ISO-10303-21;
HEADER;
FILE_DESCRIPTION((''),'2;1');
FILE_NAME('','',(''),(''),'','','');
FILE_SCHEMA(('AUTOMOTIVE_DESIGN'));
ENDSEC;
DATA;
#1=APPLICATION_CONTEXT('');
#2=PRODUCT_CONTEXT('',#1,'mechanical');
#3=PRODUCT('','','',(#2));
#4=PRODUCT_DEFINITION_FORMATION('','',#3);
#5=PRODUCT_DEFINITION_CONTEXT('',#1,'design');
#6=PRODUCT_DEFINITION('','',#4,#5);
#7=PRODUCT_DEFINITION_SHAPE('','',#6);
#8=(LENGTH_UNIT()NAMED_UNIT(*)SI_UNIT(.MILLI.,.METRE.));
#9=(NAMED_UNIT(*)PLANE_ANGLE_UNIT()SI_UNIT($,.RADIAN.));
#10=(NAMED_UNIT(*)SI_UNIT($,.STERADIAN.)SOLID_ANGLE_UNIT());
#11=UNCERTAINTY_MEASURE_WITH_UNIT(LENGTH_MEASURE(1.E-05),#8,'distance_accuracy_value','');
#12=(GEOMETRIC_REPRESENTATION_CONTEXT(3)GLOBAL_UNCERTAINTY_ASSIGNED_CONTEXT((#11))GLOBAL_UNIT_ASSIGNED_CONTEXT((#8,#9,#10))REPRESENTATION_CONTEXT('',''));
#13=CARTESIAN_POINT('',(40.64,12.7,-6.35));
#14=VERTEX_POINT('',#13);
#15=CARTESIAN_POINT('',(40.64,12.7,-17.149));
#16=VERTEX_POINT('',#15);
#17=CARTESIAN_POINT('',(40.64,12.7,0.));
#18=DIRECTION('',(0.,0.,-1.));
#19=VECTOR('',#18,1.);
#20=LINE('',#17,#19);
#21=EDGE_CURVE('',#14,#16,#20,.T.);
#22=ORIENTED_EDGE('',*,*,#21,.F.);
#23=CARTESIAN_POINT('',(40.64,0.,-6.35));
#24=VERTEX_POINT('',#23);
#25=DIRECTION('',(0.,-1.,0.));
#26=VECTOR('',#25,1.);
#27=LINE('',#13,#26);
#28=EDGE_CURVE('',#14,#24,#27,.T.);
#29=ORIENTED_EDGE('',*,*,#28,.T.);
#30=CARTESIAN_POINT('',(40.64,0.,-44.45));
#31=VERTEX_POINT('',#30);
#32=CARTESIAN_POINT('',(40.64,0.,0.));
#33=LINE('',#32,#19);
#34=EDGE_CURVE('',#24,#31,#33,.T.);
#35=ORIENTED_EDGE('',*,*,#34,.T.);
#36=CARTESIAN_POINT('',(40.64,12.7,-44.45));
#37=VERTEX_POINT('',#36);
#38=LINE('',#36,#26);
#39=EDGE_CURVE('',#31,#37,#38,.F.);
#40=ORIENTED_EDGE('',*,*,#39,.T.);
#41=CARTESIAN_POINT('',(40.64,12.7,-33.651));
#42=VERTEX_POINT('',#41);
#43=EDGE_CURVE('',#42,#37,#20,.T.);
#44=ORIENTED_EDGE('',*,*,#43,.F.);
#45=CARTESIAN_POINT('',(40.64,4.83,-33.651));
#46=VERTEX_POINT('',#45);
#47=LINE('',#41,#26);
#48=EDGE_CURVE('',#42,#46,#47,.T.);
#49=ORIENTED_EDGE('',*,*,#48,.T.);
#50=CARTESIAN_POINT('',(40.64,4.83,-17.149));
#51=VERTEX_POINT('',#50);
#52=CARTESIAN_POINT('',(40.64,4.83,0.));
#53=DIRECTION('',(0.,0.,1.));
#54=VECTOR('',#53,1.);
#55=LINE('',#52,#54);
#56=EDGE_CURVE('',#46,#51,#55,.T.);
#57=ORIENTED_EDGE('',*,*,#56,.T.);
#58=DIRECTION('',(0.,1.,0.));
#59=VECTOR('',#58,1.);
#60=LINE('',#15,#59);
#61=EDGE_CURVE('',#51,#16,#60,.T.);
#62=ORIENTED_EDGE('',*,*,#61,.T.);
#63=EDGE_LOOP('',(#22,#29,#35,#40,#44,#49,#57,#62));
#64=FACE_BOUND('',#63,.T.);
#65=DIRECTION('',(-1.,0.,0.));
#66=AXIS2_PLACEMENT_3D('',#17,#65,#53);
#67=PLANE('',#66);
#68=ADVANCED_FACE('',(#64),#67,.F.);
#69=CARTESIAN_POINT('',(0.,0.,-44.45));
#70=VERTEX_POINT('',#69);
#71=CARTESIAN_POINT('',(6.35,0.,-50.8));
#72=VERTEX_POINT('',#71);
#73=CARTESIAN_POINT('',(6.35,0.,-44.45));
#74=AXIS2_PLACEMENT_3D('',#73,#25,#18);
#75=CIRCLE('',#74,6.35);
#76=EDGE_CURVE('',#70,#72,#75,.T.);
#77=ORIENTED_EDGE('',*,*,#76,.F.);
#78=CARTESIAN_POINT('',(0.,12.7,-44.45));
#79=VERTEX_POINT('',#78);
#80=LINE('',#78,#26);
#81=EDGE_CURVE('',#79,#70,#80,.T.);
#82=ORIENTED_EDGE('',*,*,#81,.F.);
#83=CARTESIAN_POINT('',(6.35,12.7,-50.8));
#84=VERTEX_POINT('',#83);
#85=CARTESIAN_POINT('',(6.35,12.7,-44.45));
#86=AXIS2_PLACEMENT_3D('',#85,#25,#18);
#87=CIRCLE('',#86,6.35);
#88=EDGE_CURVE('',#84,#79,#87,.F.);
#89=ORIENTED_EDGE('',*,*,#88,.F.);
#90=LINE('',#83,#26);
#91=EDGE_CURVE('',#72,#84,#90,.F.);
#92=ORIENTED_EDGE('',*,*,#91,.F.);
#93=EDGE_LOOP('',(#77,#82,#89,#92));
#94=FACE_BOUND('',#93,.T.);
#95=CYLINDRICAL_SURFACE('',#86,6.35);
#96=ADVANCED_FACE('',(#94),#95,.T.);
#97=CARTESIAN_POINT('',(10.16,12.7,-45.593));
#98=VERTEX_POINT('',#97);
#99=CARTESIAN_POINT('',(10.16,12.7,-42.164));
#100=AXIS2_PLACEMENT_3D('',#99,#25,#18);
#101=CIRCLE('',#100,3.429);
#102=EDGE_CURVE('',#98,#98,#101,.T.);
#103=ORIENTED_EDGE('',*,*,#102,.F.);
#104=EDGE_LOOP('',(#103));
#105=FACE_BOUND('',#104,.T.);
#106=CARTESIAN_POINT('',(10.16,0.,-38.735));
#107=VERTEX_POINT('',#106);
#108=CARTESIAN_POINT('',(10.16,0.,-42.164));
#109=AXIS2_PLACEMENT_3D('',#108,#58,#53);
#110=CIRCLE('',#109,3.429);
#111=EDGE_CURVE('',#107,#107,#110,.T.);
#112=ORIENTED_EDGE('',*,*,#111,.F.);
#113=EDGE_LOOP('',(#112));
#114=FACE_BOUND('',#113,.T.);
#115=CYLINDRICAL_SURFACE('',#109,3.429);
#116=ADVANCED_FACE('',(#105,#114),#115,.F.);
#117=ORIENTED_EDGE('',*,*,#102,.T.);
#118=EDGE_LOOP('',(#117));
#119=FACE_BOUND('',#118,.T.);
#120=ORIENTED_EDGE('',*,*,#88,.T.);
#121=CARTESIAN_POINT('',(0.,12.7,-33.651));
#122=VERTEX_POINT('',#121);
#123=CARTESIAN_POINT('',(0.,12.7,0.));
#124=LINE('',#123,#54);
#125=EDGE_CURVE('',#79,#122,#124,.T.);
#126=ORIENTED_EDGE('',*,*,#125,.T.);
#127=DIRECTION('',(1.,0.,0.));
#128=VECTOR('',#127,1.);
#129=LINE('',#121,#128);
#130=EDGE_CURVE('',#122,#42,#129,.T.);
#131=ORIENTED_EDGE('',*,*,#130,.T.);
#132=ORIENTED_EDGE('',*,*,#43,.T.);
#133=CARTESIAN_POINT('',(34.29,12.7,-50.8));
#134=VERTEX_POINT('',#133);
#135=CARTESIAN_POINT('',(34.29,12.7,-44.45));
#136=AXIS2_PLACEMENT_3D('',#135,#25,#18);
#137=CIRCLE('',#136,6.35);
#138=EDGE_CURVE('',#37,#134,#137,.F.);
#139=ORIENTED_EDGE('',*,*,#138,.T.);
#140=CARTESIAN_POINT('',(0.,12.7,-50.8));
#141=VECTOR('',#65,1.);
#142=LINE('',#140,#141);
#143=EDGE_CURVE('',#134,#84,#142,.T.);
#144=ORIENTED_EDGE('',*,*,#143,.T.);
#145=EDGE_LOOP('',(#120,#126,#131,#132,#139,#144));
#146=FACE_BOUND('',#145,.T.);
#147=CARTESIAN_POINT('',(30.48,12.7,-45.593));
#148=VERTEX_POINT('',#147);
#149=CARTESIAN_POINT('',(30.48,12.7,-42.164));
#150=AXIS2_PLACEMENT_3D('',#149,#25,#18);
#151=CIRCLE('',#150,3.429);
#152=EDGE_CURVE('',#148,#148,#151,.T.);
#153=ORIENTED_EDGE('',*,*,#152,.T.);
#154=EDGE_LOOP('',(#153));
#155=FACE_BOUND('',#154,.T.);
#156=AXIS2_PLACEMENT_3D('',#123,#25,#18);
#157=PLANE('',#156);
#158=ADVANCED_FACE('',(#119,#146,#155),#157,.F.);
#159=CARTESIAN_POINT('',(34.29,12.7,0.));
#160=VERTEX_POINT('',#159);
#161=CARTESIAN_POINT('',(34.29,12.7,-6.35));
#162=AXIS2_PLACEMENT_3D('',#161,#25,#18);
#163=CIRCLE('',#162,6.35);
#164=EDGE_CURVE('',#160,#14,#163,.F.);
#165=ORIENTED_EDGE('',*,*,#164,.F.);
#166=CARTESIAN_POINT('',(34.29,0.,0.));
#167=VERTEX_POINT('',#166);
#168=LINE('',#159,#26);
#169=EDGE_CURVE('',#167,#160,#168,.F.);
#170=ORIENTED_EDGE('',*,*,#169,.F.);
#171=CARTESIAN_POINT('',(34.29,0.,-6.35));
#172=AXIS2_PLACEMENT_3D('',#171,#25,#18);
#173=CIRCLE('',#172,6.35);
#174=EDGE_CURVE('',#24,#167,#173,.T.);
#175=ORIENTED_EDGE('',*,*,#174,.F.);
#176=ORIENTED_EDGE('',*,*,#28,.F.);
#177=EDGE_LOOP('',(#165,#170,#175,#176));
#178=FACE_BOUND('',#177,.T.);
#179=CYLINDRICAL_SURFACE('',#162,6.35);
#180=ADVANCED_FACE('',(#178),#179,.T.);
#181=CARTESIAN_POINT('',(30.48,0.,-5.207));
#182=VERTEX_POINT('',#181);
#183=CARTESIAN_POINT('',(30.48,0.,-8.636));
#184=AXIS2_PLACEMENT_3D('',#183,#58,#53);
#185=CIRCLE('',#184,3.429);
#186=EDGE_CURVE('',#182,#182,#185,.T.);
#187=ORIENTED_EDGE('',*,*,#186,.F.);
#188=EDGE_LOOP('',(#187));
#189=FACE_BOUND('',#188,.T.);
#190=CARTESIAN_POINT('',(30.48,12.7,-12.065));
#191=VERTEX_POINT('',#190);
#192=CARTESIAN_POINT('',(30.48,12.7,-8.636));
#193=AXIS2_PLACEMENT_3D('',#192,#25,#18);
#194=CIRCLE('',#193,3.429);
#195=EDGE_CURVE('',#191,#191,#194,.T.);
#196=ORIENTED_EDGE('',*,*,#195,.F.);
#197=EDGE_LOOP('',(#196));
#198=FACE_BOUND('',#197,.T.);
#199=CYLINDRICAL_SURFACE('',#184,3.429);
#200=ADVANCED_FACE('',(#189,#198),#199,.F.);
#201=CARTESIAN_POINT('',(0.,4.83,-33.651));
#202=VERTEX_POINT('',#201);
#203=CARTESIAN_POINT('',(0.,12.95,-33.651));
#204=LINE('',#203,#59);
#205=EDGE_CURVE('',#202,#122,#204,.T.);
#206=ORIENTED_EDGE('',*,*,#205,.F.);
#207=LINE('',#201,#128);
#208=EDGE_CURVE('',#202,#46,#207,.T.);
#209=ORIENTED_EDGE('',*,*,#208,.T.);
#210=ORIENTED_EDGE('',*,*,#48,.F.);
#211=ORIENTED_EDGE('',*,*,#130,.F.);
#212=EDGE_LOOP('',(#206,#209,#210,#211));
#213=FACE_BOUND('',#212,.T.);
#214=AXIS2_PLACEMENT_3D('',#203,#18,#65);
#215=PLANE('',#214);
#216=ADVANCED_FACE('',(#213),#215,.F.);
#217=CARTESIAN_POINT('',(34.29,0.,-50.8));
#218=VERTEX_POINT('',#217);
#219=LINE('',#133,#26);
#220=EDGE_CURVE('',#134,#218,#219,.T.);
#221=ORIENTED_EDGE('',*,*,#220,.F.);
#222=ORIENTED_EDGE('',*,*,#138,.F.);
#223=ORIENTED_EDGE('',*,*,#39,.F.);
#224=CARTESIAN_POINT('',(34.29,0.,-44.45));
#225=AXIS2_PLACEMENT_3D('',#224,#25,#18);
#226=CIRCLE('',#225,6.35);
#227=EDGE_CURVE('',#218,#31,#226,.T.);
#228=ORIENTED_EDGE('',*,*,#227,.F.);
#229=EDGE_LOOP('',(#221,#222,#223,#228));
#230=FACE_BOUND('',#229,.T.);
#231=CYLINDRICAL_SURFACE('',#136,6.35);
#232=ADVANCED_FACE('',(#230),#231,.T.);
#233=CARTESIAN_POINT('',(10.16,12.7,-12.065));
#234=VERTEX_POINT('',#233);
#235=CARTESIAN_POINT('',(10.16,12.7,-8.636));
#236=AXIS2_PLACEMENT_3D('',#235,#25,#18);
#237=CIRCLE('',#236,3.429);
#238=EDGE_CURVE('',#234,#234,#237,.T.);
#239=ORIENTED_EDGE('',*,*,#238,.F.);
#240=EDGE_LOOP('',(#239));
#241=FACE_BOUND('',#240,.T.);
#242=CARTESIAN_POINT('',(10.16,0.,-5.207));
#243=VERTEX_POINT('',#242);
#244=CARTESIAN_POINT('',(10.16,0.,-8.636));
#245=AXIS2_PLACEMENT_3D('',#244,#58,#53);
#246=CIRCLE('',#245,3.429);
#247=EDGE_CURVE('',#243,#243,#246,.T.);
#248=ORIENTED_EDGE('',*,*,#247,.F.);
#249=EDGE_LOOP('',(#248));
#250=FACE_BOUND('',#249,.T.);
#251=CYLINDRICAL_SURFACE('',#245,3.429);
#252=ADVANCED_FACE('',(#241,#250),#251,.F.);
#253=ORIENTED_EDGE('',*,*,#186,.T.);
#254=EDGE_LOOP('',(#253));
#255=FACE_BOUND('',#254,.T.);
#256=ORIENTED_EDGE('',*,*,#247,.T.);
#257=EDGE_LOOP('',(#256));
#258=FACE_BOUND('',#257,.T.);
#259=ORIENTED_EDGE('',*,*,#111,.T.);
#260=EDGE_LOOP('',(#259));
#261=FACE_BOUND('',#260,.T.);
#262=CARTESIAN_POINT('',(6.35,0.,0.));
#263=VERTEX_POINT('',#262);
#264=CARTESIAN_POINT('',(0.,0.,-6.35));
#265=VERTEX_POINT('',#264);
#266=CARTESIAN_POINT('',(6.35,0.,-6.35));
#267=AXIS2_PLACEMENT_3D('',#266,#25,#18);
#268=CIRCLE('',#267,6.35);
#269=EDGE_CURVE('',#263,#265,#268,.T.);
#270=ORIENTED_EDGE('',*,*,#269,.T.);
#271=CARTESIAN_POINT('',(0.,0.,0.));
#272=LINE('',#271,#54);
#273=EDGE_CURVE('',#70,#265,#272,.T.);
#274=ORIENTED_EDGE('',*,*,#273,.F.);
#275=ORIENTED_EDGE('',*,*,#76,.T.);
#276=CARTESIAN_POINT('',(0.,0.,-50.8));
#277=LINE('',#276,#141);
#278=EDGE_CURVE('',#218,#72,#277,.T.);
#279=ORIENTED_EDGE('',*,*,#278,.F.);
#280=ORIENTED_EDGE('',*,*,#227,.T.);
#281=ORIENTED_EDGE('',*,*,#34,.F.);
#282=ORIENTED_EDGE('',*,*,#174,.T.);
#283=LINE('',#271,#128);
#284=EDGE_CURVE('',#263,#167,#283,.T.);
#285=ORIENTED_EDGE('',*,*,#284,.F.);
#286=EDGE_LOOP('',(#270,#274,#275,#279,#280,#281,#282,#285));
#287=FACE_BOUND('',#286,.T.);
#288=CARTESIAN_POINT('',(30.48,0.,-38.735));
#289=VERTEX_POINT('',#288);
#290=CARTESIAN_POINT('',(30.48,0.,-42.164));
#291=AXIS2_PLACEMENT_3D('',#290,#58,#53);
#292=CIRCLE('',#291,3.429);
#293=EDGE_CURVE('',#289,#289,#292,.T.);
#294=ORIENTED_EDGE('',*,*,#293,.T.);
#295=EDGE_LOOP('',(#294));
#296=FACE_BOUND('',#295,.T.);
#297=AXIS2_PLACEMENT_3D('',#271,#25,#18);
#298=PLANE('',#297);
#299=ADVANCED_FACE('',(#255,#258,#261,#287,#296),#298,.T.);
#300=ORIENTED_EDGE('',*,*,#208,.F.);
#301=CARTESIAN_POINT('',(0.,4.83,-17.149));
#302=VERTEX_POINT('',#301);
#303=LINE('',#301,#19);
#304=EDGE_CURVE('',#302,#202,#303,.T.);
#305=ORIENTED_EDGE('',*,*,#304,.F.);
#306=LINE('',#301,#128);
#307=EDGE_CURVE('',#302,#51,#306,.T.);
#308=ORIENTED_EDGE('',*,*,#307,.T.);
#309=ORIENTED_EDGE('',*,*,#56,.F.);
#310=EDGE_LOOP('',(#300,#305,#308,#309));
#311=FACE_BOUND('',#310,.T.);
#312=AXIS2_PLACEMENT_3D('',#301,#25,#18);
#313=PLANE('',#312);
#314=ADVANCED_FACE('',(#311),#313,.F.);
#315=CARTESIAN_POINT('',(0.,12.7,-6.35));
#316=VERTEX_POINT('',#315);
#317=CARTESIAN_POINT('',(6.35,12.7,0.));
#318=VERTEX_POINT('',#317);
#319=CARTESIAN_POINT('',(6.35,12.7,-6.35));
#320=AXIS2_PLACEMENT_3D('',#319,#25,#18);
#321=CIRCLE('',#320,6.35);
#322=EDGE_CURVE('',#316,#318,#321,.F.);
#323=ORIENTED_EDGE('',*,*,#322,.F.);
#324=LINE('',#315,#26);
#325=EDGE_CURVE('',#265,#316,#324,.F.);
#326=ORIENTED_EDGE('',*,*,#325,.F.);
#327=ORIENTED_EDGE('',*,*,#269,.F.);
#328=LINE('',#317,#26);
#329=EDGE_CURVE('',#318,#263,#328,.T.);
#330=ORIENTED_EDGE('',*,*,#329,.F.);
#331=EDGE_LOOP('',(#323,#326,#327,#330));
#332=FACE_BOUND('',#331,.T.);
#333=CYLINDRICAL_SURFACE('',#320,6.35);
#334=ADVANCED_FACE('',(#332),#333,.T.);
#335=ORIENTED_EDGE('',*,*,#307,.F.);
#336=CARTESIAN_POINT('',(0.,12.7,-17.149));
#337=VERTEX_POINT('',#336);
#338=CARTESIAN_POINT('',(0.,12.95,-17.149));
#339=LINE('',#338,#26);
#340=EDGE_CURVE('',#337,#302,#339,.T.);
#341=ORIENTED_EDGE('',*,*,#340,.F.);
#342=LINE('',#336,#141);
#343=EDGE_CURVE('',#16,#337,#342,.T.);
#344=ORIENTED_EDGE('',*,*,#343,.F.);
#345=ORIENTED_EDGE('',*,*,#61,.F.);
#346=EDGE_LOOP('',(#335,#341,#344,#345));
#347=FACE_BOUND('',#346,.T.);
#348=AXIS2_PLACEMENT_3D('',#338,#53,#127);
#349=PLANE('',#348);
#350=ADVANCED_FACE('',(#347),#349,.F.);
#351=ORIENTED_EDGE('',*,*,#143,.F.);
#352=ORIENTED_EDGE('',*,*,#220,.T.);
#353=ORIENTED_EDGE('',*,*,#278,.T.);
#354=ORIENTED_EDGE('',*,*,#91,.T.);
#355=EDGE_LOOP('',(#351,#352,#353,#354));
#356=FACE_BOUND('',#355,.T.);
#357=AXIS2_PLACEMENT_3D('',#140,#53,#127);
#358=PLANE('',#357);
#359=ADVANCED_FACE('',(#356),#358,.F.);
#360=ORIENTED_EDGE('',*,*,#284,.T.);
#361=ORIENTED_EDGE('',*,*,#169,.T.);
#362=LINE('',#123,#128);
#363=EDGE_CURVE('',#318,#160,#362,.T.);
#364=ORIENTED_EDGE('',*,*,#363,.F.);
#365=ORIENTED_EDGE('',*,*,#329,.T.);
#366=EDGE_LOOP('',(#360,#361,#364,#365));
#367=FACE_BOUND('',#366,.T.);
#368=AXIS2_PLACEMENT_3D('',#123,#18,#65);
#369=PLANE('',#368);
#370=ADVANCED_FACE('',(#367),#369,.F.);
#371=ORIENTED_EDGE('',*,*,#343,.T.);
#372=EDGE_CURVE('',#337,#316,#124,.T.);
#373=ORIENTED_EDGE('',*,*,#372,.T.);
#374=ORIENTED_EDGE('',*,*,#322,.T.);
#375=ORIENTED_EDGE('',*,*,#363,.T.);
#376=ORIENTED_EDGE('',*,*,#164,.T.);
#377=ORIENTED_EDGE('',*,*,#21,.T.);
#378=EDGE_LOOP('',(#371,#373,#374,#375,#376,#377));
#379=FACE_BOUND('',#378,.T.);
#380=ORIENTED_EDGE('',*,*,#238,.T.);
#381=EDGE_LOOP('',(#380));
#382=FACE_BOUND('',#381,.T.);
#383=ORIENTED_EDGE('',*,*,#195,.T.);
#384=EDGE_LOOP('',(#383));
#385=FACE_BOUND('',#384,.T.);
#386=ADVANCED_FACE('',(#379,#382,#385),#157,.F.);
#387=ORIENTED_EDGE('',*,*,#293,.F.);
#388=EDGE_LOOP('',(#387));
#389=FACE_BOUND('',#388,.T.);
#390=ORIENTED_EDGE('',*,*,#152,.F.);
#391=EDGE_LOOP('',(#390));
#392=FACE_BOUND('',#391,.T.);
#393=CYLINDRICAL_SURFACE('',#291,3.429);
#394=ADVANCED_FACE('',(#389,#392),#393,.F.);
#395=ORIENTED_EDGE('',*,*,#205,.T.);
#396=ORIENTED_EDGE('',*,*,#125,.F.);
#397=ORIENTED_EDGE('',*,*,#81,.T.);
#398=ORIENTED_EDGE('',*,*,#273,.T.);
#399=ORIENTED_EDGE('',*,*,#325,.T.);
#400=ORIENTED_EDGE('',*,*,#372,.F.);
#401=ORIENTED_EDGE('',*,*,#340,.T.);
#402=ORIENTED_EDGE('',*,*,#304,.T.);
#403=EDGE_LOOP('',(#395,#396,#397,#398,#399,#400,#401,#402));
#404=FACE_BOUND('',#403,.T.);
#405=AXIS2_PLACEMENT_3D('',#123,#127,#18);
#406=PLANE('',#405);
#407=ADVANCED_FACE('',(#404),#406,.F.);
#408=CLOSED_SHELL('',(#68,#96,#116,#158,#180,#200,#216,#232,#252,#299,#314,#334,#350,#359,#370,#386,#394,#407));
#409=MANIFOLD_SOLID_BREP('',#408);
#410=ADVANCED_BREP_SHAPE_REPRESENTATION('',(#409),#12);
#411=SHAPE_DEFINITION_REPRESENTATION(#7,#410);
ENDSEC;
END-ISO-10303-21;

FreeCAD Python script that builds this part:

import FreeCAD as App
import Part
import Sketcher
from FreeCAD import Vector
Q = App.Units.Quantity


def edges_at(feature, points):
    """Names of the edges that pass closest to the given points."""
    edges = feature.Shape.Edges
    near = lambda p: min(range(len(edges)), key=lambda i: edges[i].distToShape(Part.Vertex(*p))[0])
    return sorted({f"Edge{near(p) + 1}" for p in points})


def add_polygon(sketch, points):
    """Adds a closed chain of lines whose ends are joined by coincident constraints."""
    first, n = sketch.GeometryCount, len(points)
    for a, b in zip(points, points[1:] + points[:1]):
        sketch.addGeometry(Part.LineSegment(App.Vector(*a, 0), App.Vector(*b, 0)), False)
    for i in range(n):
        sketch.addConstraint(Sketcher.Constraint("Coincident", first + i, 2, first + (i + 1) % n, 1))

doc = App.newDocument("Part")
params = doc.addObject("Spreadsheet::Sheet", "Params")
for row, (alias, value) in enumerate([
    ("sketch1_height", "2 in"),
    ("sketch1_width", "1.6 in"),
    ("pad1_length", "0.5 in"),
    ("sketch3_diameter", "0.27 in"),
    ("fillet_radius", "0.25 in"),
], start=1):
    params.set(f"A{row}", alias)
    params.set(f"B{row}", "=" + value)
    params.setAlias(f"B{row}", alias)

body = doc.addObject("PartDesign::Body", "Body")

# Sketch on XZ plane
sketch1 = body.newObject("Sketcher::SketchObject", "Sketch")
sketch1.AttachmentSupport = (doc.getObject("XZ_Plane"), [""])
sketch1.MapMode = "FlatFace"
add_polygon(sketch1, [(0, -51), (0, 0), (41, 0), (41, -51)])  # lines 0-3
sketch1.addConstraint(Sketcher.Constraint("Vertical", 0))
sketch1.addConstraint(Sketcher.Constraint("Horizontal", 1))
sketch1.addConstraint(Sketcher.Constraint("Vertical", 2))
sketch1.addConstraint(Sketcher.Constraint("Horizontal", 3))
sketch1.addConstraint(Sketcher.Constraint("Coincident", 0, 2, -1, 1))
sketch1.addConstraint(Sketcher.Constraint("DistanceY", 0, 1, 0, 2, Q("2 in")))
sketch1.addConstraint(Sketcher.Constraint("DistanceX", 1, 1, 1, 2, Q("1.6 in")))
sketch1.setExpression("Constraints[9]", "Params.sketch1_height")
sketch1.setExpression("Constraints[10]", "Params.sketch1_width")
pad1 = body.newObject("PartDesign::Pad", "Pad")
pad1.Profile = sketch1
pad1.setExpression("Length", "Params.pad1_length")
pad1.Reversed = True

# Sketch on YZ plane
sketch2 = body.newObject("Sketcher::SketchObject", "Sketch001")
sketch2.AttachmentSupport = (doc.getObject("YZ_Plane"), [""])
sketch2.MapMode = "FlatFace"
sketch2.AttachmentOffset = App.Placement(Vector(0, 0, 1.6 * 25.4), App.Rotation())
add_polygon(sketch2, [(13, -17), (5, -17), (5, -34), (13, -34)])  # lines 0-3
sketch2.addConstraint(Sketcher.Constraint("Horizontal", 0))
sketch2.addConstraint(Sketcher.Constraint("Vertical", 1))
sketch2.addConstraint(Sketcher.Constraint("Horizontal", 2))
sketch2.addConstraint(Sketcher.Constraint("Vertical", 3))
sketch2.addConstraint(Sketcher.Constraint("DistanceX", 0, 2, 0, 1, Q("8.12 mm")))
sketch2.addConstraint(Sketcher.Constraint("DistanceY", 1, 2, 1, 1, Q("16.502 mm")))
sketch2.addConstraint(Sketcher.Constraint("DistanceX", -1, 1, 0, 2, Q("4.83 mm")))
sketch2.addConstraint(Sketcher.Constraint("DistanceY", 0, 2, -1, 1, Q("17.149 mm")))
pocket1 = body.newObject("PartDesign::Pocket", "Pocket")
pocket1.Profile = sketch2
pocket1.Type = "ThroughAll"
pocket1.Midplane = True

# Sketch on XZ plane
sketch3 = body.newObject("Sketcher::SketchObject", "Sketch002")
sketch3.AttachmentSupport = (doc.getObject("XZ_Plane"), [""])
sketch3.MapMode = "FlatFace"
sketch3.AttachmentOffset = App.Placement(Vector(0, 0, -0.5 * 25.4), App.Rotation())
sketch3.addGeometry(Part.Circle(Vector(10.2, -8.6, 0), Vector(0, 0, 1), 3.4), False)
sketch3.addGeometry(Part.Circle(Vector(30.5, -8.6, 0), Vector(0, 0, 1), 3.4), False)
sketch3.addGeometry(Part.Circle(Vector(30.5, -42.2, 0), Vector(0, 0, 1), 3.4), False)
sketch3.addGeometry(Part.Circle(Vector(10.2, -42.2, 0), Vector(0, 0, 1), 3.4), False)
sketch3.addConstraint(Sketcher.Constraint("Equal", 0, 1))
sketch3.addConstraint(Sketcher.Constraint("Equal", 1, 2))
sketch3.addConstraint(Sketcher.Constraint("Equal", 2, 3))
sketch3.addConstraint(Sketcher.Constraint("Horizontal", 0, 3, 1, 3))
sketch3.addConstraint(Sketcher.Constraint("Horizontal", 2, 3, 3, 3))
sketch3.addConstraint(Sketcher.Constraint("Vertical", 1, 3, 2, 3))
sketch3.addConstraint(Sketcher.Constraint("Vertical", 0, 3, 3, 3))
sketch3.addConstraint(Sketcher.Constraint("Diameter", 0, Q("0.27 in")))
sketch3.addConstraint(Sketcher.Constraint("DistanceX", -1, 1, 0, 3, Q("0.4 in")))
sketch3.addConstraint(Sketcher.Constraint("DistanceX", -1, 1, 1, 3, Q("1.2 in")))
sketch3.addConstraint(Sketcher.Constraint("DistanceY", 0, 3, -1, 1, Q("0.34 in")))
sketch3.addConstraint(Sketcher.Constraint("DistanceY", 2, 3, -1, 1, Q("1.66 in")))
sketch3.setExpression("Constraints[7]", "Params.sketch3_diameter")
pocket2 = body.newObject("PartDesign::Pocket", "Pocket001")
pocket2.Profile = sketch3
pocket2.Type = "ThroughAll"
pocket2.Midplane = True
doc.recompute()

fillet = body.newObject("PartDesign::Fillet", "Fillet")
fillet.Base = (pocket2, edges_at(pocket2, [
    (0, 6.35, -50.8),
    (40.64, 6.35, -50.8),
    (40.64, 6.35, 0),
    (0, 6.35, 0),
]))
fillet.setExpression("Radius", "Params.fillet_radius")

doc.recompute()
